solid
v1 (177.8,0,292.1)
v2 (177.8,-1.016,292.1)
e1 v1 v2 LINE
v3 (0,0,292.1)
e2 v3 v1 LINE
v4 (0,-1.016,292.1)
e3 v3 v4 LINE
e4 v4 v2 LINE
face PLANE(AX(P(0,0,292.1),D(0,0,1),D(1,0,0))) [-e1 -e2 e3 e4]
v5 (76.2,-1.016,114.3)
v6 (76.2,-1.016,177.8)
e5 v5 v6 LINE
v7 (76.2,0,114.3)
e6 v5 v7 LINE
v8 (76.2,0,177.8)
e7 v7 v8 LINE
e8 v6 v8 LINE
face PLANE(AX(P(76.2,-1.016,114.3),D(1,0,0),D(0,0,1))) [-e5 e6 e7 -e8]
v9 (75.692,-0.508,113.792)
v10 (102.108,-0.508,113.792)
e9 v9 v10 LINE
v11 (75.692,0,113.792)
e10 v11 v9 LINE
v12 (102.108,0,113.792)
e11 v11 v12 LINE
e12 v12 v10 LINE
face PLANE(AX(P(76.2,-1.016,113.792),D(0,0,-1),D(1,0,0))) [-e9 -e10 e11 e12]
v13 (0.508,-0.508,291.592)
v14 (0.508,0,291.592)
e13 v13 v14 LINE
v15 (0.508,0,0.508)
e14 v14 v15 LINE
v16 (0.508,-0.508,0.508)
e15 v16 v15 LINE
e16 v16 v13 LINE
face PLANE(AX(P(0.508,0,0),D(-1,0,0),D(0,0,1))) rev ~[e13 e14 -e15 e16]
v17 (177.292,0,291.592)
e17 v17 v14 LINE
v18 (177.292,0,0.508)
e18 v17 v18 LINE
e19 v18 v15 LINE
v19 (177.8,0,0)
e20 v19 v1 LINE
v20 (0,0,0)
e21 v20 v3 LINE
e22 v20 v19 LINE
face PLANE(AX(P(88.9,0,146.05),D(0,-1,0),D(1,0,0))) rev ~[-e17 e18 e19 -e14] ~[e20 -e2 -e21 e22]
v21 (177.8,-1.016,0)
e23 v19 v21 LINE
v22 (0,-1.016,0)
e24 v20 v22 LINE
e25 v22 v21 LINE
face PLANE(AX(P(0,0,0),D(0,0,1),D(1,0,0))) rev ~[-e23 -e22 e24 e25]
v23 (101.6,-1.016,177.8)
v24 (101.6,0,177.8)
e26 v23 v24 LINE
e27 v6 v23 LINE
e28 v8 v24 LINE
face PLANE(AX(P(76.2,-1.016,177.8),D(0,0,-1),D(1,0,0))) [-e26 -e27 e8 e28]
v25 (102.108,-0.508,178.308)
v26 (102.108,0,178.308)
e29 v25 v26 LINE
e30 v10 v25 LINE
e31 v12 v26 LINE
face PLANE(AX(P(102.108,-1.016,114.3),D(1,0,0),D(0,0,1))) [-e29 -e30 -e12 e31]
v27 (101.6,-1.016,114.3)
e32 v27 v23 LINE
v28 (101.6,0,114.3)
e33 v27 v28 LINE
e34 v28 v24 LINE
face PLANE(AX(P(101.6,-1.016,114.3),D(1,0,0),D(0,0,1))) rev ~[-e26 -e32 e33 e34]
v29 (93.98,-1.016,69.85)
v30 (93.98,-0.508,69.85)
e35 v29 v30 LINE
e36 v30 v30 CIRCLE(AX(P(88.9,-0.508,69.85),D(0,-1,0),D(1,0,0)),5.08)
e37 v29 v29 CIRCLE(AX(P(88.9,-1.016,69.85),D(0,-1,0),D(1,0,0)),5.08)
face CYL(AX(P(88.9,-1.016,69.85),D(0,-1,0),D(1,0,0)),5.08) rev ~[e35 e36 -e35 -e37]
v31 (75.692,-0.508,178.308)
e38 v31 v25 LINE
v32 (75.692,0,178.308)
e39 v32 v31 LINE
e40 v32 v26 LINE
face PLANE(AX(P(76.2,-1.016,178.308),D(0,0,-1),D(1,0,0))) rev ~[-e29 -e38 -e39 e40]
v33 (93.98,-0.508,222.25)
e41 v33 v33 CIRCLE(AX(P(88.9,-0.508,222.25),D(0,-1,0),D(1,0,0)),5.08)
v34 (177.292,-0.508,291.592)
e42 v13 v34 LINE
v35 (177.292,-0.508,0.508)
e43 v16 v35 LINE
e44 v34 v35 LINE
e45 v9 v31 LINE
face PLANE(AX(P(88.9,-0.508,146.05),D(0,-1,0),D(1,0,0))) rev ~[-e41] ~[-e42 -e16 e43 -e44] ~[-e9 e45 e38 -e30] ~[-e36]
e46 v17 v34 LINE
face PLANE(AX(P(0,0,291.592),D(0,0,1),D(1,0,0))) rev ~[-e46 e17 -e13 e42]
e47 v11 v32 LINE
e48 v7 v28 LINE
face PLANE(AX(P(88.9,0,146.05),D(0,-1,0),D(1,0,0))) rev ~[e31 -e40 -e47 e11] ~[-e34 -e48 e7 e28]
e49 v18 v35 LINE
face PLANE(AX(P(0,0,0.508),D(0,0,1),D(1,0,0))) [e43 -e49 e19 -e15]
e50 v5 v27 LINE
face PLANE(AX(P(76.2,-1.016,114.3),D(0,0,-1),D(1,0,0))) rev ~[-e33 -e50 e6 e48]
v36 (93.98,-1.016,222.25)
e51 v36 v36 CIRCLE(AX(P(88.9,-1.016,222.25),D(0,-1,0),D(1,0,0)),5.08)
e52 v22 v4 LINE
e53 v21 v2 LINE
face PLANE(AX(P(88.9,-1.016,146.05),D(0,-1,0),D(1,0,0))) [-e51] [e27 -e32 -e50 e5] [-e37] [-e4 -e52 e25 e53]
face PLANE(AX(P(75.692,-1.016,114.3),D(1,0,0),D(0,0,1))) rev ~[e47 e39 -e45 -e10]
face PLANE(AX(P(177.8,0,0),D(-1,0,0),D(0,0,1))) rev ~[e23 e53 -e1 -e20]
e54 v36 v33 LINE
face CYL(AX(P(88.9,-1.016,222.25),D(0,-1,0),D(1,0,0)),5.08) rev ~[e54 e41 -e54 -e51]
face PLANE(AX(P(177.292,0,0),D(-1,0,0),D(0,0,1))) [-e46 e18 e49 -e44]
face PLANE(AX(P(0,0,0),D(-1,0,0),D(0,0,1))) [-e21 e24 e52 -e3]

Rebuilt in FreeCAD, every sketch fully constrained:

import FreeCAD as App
import Part
import Sketcher
Q = App.Units.Quantity


def faces_at(feature, points):
    """Names of the faces that lie closest to the given points."""
    faces = feature.Shape.Faces
    near = lambda p: min(range(len(faces)), key=lambda i: faces[i].distToShape(Part.Vertex(*p))[0])
    return sorted({f"Face{near(p) + 1}" for p in points})

doc = App.newDocument("Part")
body = doc.addObject("PartDesign::Body", "Body")

# Sketch on XZ plane
sketch1 = doc.addObject("Sketcher::SketchObject", "Sketch")
body.addObject(sketch1)
sketch1.AttachmentSupport = (doc.XZ_Plane, [""])
sketch1.MapMode = "FlatFace"
sketch1.addGeometry([
    Part.LineSegment(App.Vector(0, 292, 0), App.Vector(0, 0, 0)),
    Part.LineSegment(App.Vector(0, 0, 0), App.Vector(178, 0, 0)),
    Part.LineSegment(App.Vector(178, 0, 0), App.Vector(178, 292, 0)),
    Part.LineSegment(App.Vector(178, 292, 0), App.Vector(0, 292, 0)),
], False)
sketch1.addConstraint([
    Sketcher.Constraint("Coincident", 0, 2, 1, 1),
    Sketcher.Constraint("Coincident", 1, 2, 2, 1),
    Sketcher.Constraint("Coincident", 2, 2, 3, 1),
    Sketcher.Constraint("Coincident", 3, 2, 0, 1),
    Sketcher.Constraint("Vertical", 0),
    Sketcher.Constraint("Horizontal", 1),
    Sketcher.Constraint("Vertical", 2),
    Sketcher.Constraint("Horizontal", 3),
    Sketcher.Constraint("Coincident", 0, 2, -1, 1),
    Sketcher.Constraint("DistanceX", 1, 1, 1, 2, Q("7 in")),
    Sketcher.Constraint("DistanceY", 0, 2, 0, 1, Q("11.5 in")),
])
pad1 = doc.addObject("PartDesign::Pad", "Pad")
body.addObject(pad1)
pad1.Profile = sketch1
pad1.Length = Q("0.04 in")

# Sketch on XZ plane
sketch2 = doc.addObject("Sketcher::SketchObject", "Sketch001")
body.addObject(sketch2)
sketch2.AttachmentSupport = (doc.XZ_Plane, [""])
sketch2.MapMode = "FlatFace"
sketch2.AttachmentOffset = App.Placement(App.Vector(0, 0, 0.04 * 25.4), App.Rotation())
sketch2.addGeometry([
    Part.LineSegment(App.Vector(76, 178, 0), App.Vector(76, 114, 0)),
    Part.LineSegment(App.Vector(76, 114, 0), App.Vector(102, 114, 0)),
    Part.LineSegment(App.Vector(102, 114, 0), App.Vector(102, 178, 0)),
    Part.LineSegment(App.Vector(102, 178, 0), App.Vector(76, 178, 0)),
], False)
sketch2.addConstraint([
    Sketcher.Constraint("Coincident", 0, 2, 1, 1),
    Sketcher.Constraint("Coincident", 1, 2, 2, 1),
    Sketcher.Constraint("Coincident", 2, 2, 3, 1),
    Sketcher.Constraint("Coincident", 3, 2, 0, 1),
    Sketcher.Constraint("Vertical", 0),
    Sketcher.Constraint("Horizontal", 1),
    Sketcher.Constraint("Vertical", 2),
    Sketcher.Constraint("Horizontal", 3),
    Sketcher.Constraint("DistanceX", 1, 1, 1, 2, Q("1 in")),
    Sketcher.Constraint("DistanceY", 0, 2, 0, 1, Q("2.5 in")),
    Sketcher.Constraint("DistanceX", -1, 1, 0, 2, Q("3 in")),
    Sketcher.Constraint("DistanceY", -1, 1, 2, 2, Q("7 in")),
])
pocket1 = doc.addObject("PartDesign::Pocket", "Pocket")
body.addObject(pocket1)
pocket1.Profile = sketch2
pocket1.Length = Q("1 in")
doc.recompute()

thickness = doc.addObject("PartDesign::Thickness", "Thickness")
body.addObject(thickness)
thickness.Base = (pocket1, faces_at(pocket1, [(53.34, 0, 87.63)]))
thickness.Value = Q("0.02 in")
thickness.Reversed = True
thickness.Join = "Intersection"

# Sketch on XZ plane
sketch3 = doc.addObject("Sketcher::SketchObject", "Sketch002")
body.addObject(sketch3)
sketch3.AttachmentSupport = (doc.XZ_Plane, [""])
sketch3.MapMode = "FlatFace"
sketch3.AttachmentOffset = App.Placement(App.Vector(0, 0, 0.04 * 25.4), App.Rotation())
sketch3.addGeometry(Part.Circle(App.Vector(89, 70, 0), App.Vector(0, 0, 1), 5), False)
sketch3.addConstraint([
    Sketcher.Constraint("Diameter", 0, Q("0.4 in")),
    Sketcher.Constraint("DistanceX", -1, 1, 0, 3, Q("3.5 in")),
    Sketcher.Constraint("DistanceY", -1, 1, 0, 3, Q("2.75 in")),
])
pocket2 = doc.addObject("PartDesign::Pocket", "Pocket001")
body.addObject(pocket2)
pocket2.Profile = sketch3
pocket2.Length = Q("1 in")

# Sketch on XZ plane
sketch4 = doc.addObject("Sketcher::SketchObject", "Sketch003")
body.addObject(sketch4)
sketch4.AttachmentSupport = (doc.XZ_Plane, [""])
sketch4.MapMode = "FlatFace"
sketch4.AttachmentOffset = App.Placement(App.Vector(0, 0, 0.04 * 25.4), App.Rotation())
sketch4.addGeometry(Part.Circle(App.Vector(89, 222, 0), App.Vector(0, 0, 1), 5), False)
sketch4.addConstraint([
    Sketcher.Constraint("Diameter", 0, Q("0.4 in")),
    Sketcher.Constraint("DistanceX", -1, 1, 0, 3, Q("3.5 in")),
    Sketcher.Constraint("DistanceY", -1, 1, 0, 3, Q("8.75 in")),
])
pocket3 = doc.addObject("PartDesign::Pocket", "Pocket002")
body.addObject(pocket3)
pocket3.Profile = sketch4
pocket3.Length = Q("1 in")

doc.recompute()
